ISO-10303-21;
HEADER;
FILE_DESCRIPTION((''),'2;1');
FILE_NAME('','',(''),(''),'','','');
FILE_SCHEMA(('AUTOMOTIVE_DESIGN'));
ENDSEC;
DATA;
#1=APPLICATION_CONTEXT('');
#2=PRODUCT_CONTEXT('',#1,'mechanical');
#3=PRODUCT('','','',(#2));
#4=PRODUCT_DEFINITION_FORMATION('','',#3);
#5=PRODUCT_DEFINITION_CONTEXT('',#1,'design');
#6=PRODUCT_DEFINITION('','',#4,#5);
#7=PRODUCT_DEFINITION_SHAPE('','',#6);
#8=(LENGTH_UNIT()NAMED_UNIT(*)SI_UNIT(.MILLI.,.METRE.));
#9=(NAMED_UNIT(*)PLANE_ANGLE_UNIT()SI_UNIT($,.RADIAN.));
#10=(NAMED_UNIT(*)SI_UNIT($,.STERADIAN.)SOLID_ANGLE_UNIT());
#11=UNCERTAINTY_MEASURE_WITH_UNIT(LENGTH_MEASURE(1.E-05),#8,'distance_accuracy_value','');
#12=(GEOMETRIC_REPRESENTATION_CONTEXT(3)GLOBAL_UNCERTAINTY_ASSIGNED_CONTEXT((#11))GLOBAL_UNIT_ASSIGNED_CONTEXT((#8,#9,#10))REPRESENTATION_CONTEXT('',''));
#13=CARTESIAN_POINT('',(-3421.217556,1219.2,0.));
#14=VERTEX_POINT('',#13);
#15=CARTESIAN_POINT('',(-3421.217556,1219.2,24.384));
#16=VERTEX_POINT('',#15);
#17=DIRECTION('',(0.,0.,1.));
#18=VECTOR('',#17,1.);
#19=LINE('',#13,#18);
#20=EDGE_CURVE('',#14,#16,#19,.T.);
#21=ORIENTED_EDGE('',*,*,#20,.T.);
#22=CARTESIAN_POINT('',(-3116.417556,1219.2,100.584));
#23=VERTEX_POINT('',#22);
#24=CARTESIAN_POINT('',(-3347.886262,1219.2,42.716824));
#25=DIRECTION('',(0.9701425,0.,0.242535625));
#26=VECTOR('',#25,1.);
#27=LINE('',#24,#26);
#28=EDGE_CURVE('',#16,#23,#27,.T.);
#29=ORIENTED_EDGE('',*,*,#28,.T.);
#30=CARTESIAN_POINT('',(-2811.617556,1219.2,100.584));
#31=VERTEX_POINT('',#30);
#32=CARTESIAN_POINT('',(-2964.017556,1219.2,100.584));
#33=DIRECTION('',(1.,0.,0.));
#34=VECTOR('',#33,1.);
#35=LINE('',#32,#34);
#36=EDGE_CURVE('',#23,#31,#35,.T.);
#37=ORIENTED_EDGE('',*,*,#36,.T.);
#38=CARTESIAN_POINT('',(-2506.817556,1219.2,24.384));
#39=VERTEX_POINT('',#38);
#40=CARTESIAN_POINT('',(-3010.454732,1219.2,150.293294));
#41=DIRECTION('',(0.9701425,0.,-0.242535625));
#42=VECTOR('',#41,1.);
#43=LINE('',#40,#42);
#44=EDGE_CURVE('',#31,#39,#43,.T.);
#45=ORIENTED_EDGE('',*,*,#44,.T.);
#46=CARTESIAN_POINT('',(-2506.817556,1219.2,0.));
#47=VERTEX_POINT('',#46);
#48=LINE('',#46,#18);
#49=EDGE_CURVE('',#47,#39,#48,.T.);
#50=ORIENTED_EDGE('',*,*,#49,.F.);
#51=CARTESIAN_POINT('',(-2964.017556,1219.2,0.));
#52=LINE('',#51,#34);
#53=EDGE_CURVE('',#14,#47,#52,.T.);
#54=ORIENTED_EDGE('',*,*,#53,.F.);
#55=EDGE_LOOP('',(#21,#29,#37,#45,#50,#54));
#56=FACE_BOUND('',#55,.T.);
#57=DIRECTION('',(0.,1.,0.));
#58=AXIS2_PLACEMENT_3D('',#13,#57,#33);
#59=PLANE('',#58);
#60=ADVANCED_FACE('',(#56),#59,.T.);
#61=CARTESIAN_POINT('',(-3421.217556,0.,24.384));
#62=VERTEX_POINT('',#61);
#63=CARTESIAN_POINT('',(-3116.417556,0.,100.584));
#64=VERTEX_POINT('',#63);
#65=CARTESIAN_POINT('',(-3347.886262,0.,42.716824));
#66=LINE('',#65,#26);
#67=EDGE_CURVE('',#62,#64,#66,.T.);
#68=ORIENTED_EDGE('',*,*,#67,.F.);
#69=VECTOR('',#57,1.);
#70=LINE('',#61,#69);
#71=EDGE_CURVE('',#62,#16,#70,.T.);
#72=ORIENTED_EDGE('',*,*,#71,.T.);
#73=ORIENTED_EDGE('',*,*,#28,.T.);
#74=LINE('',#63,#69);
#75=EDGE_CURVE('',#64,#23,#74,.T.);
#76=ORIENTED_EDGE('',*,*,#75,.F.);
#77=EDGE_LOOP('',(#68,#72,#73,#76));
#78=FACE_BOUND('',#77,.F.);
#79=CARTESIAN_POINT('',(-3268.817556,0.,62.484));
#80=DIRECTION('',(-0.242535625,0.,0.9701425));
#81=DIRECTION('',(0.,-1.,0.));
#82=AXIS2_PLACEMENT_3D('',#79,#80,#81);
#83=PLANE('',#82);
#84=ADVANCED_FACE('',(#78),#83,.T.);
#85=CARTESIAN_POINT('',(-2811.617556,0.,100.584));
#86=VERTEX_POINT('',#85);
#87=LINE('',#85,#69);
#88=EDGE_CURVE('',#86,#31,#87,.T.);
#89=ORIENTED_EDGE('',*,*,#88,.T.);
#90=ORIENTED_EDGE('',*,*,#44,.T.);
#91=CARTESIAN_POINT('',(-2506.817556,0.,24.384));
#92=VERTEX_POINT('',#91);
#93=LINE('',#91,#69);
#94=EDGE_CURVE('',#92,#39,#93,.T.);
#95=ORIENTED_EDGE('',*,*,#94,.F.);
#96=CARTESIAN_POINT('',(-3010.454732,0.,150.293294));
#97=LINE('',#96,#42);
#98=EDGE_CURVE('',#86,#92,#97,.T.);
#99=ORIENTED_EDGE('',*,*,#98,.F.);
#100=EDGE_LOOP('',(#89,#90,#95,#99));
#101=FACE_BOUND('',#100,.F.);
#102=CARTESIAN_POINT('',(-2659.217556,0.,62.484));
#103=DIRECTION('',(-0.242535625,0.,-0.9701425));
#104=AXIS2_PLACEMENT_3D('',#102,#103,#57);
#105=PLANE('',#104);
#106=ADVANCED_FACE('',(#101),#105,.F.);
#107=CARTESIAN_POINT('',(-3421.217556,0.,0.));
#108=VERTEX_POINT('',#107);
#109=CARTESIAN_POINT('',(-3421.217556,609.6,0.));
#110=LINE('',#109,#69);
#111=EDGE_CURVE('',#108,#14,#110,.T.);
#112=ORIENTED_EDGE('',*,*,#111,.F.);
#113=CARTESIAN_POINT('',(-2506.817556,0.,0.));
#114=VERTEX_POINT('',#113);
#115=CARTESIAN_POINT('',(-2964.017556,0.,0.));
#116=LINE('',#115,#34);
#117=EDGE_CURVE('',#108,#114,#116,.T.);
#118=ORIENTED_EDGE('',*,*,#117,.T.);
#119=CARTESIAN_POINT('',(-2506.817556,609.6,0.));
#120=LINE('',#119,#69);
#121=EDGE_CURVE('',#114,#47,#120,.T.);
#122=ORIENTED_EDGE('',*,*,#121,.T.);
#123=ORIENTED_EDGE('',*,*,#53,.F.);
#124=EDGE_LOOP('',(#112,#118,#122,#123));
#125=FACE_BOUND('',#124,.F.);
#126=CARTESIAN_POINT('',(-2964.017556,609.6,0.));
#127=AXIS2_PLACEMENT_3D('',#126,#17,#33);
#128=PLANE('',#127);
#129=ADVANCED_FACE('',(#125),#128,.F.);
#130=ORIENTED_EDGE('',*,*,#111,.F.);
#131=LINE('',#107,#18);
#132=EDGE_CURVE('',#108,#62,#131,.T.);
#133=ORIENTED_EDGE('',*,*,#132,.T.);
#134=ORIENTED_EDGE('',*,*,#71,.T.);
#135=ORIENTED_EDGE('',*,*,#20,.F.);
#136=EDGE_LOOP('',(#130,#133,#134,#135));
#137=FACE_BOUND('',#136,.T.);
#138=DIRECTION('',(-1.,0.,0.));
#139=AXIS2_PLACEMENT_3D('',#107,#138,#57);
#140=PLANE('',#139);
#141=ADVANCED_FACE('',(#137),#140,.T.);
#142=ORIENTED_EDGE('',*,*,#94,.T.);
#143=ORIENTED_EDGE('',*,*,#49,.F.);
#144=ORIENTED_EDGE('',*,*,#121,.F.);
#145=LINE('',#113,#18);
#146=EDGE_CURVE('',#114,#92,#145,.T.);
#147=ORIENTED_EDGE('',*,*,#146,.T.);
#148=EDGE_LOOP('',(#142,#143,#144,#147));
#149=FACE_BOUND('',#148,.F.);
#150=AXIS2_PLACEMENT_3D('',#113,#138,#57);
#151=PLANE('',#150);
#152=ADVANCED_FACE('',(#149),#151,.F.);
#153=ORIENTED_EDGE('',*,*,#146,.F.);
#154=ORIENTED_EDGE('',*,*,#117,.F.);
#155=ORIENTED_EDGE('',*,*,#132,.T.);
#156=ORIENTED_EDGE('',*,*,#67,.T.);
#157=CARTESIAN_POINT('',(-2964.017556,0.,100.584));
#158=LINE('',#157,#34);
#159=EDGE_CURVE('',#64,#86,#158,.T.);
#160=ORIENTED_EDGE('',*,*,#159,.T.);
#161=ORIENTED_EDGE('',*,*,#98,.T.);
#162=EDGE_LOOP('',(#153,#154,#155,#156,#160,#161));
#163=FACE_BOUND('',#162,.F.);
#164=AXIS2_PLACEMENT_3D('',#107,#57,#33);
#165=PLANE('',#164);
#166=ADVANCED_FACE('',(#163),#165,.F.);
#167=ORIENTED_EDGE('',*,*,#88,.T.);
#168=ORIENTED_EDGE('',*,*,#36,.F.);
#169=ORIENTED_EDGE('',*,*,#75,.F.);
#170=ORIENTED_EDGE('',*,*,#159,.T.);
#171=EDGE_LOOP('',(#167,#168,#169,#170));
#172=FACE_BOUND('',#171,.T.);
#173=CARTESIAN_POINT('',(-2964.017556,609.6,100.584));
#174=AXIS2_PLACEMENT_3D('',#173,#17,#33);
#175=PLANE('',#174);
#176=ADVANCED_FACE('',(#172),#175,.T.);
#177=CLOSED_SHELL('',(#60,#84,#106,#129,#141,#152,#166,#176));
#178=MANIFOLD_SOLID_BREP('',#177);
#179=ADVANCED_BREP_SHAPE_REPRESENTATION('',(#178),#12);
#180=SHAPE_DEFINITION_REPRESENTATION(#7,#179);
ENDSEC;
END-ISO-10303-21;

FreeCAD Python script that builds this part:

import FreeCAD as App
import Part
import Sketcher
from FreeCAD import Vector
Q = App.Units.Quantity


def edges_at(feature, points):
    """Names of the edges that pass closest to the given points."""
    edges = feature.Shape.Edges
    near = lambda p: min(range(len(edges)), key=lambda i: edges[i].distToShape(Part.Vertex(*p))[0])
    return sorted({f"Edge{near(p) + 1}" for p in points})

doc = App.newDocument("Part")
body = doc.addObject("PartDesign::Body", "Body")

# Sketch on XY plane
sketch1 = body.newObject("Sketcher::SketchObject", "Sketch")
sketch1.AttachmentSupport = (doc.getObject("XY_Plane"), [""])
sketch1.MapMode = "FlatFace"
sketch1.addGeometry(Part.LineSegment(Vector(-3421.217556, 1219.2, 0), Vector(-3421.217556, 0, 0)), False)
sketch1.addGeometry(Part.LineSegment(Vector(-3421.217556, 0, 0), Vector(-2506.817556, 0, 0)), False)
sketch1.addGeometry(Part.LineSegment(Vector(-2506.817556, 0, 0), Vector(-2506.817556, 1219.2, 0)), False)
sketch1.addGeometry(Part.LineSegment(Vector(-2506.817556, 1219.2, 0), Vector(-3421.217556, 1219.2, 0)), False)
sketch1.addConstraint(Sketcher.Constraint("Coincident", 0, 2, 1, 1))
sketch1.addConstraint(Sketcher.Constraint("Coincident", 1, 2, 2, 1))
sketch1.addConstraint(Sketcher.Constraint("Coincident", 2, 2, 3, 1))
sketch1.addConstraint(Sketcher.Constraint("Coincident", 3, 2, 0, 1))
sketch1.addConstraint(Sketcher.Constraint("Vertical", 0))
sketch1.addConstraint(Sketcher.Constraint("Horizontal", 1))
sketch1.addConstraint(Sketcher.Constraint("Vertical", 2))
sketch1.addConstraint(Sketcher.Constraint("Horizontal", 3))
sketch1.addConstraint(Sketcher.Constraint("PointOnObject", 0, 2, -1))
sketch1.addConstraint(Sketcher.Constraint("DistanceX", 1, 1, 1, 2, Q("36 in")))
sketch1.addConstraint(Sketcher.Constraint("DistanceY", 0, 2, 0, 1, Q("48 in")))
sketch1.addConstraint(Sketcher.Constraint("DistanceX", 0, 2, -1, 1, Q("3421.217556 mm")))
pad1 = body.newObject("PartDesign::Pad", "Pad")
pad1.Profile = sketch1
pad1.Length = Q("3.96 in")
doc.recompute()

chamfer = body.newObject("PartDesign::Chamfer", "Chamfer")
chamfer.Base = (pad1, edges_at(pad1, [(-3421.218, 609.6, 100.584)]))
chamfer.ChamferType = "Two distances"
chamfer.Size = Q("3 in")
chamfer.Size2 = Q("12 in")
doc.recompute()

chamfer2 = body.newObject("PartDesign::Chamfer", "Chamfer001")
chamfer2.Base = (chamfer, edges_at(chamfer, [(-2506.818, 609.6, 100.584)]))
chamfer2.ChamferType = "Two distances"
chamfer2.Size = Q("12 in")
chamfer2.Size2 = Q("3 in")

doc.recompute()
